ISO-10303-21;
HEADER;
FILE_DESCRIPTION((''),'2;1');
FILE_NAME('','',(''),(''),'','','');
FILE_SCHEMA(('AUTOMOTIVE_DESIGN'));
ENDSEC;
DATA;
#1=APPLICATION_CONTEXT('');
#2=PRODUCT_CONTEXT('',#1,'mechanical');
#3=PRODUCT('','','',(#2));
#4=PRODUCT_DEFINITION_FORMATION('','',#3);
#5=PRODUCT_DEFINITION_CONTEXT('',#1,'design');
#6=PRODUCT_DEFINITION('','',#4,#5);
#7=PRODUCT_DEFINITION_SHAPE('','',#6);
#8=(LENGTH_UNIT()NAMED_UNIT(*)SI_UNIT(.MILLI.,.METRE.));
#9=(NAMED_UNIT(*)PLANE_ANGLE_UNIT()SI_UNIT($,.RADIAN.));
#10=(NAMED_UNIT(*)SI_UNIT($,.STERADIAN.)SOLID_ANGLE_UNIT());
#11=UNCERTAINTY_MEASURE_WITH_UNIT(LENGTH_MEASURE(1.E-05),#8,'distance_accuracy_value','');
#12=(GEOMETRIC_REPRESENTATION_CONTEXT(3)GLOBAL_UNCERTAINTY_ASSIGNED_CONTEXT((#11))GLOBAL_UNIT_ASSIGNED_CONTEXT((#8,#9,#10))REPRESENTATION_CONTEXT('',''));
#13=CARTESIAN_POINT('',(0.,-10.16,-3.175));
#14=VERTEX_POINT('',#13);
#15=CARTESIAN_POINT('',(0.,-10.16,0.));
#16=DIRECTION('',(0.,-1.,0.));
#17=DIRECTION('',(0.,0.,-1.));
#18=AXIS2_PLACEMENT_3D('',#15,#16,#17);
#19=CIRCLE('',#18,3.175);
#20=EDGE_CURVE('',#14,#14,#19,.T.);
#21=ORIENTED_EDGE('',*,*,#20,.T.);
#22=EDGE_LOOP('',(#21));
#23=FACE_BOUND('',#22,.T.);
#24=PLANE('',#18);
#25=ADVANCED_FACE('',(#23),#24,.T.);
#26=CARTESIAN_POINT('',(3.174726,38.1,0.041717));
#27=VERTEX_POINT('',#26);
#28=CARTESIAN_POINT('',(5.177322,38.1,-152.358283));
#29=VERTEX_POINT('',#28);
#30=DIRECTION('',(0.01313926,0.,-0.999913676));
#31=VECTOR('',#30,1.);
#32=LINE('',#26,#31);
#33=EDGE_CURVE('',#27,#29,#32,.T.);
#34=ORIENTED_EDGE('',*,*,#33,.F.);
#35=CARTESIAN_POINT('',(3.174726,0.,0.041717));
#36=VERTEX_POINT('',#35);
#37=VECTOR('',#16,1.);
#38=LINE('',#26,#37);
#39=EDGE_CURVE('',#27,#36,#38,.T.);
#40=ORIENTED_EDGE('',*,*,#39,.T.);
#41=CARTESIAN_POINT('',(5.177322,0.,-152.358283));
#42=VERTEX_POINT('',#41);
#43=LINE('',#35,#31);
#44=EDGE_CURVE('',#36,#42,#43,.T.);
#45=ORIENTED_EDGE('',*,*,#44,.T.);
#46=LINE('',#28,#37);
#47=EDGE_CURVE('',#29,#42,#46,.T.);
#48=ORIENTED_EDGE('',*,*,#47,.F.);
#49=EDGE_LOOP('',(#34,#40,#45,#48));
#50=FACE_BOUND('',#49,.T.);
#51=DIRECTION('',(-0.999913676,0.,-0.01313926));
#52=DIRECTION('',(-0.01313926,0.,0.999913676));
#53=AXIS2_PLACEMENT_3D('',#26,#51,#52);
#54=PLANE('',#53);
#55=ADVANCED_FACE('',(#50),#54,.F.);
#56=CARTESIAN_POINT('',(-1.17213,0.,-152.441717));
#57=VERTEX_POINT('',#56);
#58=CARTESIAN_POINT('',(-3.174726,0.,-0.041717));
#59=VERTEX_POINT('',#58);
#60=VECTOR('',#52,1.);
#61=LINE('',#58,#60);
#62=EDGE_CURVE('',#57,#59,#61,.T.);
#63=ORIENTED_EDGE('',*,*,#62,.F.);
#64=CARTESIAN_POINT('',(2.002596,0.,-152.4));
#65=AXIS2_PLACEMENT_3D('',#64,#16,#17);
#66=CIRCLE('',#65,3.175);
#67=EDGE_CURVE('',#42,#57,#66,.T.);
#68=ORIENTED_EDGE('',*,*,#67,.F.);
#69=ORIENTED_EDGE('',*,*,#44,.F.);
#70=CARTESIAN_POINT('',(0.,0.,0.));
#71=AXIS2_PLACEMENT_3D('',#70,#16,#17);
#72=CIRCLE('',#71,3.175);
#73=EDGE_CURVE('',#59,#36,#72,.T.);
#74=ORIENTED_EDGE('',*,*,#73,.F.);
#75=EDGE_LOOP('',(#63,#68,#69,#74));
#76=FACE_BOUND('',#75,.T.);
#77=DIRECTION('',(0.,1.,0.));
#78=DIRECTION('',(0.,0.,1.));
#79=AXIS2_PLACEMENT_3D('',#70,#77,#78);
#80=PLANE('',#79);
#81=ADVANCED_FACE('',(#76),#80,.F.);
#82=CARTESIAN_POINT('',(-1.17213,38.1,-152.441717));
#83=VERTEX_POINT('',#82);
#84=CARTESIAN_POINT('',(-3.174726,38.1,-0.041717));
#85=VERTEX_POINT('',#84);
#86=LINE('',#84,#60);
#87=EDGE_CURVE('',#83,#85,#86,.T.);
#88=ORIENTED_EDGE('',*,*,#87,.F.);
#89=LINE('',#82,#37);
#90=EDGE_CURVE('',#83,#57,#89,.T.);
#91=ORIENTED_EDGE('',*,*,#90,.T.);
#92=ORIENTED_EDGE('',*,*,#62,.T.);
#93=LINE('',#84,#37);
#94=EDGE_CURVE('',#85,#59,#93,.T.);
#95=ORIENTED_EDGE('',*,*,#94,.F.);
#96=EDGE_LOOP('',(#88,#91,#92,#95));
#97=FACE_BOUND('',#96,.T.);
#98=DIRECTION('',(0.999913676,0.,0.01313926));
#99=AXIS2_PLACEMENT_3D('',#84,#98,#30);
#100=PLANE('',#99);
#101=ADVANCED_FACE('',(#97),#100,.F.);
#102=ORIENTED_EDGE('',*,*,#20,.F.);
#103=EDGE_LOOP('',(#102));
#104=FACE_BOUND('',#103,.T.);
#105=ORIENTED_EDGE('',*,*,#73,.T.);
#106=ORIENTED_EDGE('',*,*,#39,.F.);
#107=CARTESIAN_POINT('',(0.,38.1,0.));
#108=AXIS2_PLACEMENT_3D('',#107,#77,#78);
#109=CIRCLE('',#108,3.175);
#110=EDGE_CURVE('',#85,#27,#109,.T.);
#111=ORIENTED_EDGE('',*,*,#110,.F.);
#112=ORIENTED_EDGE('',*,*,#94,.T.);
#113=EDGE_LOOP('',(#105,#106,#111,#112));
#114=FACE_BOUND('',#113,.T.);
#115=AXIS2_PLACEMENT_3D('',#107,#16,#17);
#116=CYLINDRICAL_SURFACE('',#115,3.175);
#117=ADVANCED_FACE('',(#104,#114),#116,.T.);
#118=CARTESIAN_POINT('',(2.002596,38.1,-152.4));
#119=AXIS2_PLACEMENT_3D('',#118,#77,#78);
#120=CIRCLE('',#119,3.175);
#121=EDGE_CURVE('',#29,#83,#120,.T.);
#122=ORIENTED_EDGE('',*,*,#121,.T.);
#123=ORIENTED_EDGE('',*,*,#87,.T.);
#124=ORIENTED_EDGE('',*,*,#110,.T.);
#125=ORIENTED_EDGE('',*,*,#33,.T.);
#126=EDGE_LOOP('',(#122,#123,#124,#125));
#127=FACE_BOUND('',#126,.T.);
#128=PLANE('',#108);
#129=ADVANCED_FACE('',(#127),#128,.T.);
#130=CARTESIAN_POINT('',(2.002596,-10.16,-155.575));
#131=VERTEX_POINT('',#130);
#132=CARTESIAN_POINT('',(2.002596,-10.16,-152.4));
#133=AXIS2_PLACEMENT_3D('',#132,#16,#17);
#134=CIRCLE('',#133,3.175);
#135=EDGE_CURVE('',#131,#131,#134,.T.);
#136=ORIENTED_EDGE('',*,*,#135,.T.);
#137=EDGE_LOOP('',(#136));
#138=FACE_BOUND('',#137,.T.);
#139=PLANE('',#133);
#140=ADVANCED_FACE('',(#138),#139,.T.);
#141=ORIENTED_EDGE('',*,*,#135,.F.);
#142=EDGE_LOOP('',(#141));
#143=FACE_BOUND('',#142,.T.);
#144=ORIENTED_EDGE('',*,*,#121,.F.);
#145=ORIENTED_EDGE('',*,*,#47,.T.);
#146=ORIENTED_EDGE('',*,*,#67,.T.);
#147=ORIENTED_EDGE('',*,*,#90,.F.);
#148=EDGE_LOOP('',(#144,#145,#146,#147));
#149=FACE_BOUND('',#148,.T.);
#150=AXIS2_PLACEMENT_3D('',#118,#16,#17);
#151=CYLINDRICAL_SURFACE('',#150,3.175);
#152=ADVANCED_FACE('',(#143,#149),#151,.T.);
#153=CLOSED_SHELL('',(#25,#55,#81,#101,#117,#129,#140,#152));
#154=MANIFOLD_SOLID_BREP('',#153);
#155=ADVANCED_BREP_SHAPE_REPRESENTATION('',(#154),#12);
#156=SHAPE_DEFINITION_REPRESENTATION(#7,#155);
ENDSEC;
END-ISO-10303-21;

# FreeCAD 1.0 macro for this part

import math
import FreeCAD as App
import Part
import Sketcher
from FreeCAD import Vector
Q = App.Units.Quantity

doc = App.newDocument("Part")
body = doc.addObject("PartDesign::Body", "Body")

# Sketch on XZ plane
sketch1 = body.newObject("Sketcher::SketchObject", "Sketch")
sketch1.AttachmentSupport = (doc.getObject("XZ_Plane"), [""])
sketch1.MapMode = "FlatFace"
sketch1.addGeometry([
    Part.LineSegment(Vector(-1.2, -152.4, 0), Vector(-3.2, 0, 0)),
    Part.ArcOfCircle(Part.Circle(Vector(0, 0, 0), Vector(0, 0, 1), 3.2), math.radians(1), math.radians(181)),
    Part.LineSegment(Vector(3.2, 0, 0), Vector(5.2, -152.4, 0)),
    Part.ArcOfCircle(Part.Circle(Vector(2, -152.4, 0), Vector(0, 0, 1), 3.2), math.radians(-179), math.radians(1)),
], False)
sketch1.addConstraint([
    Sketcher.Constraint("Tangent", 0, 2, 1, 2),
    Sketcher.Constraint("Tangent", 1, 1, 2, 1),
    Sketcher.Constraint("Tangent", 2, 2, 3, 2),
    Sketcher.Constraint("Tangent", 3, 1, 0, 1),
    Sketcher.Constraint("Coincident", 1, 3, -1, 1),
    Sketcher.Constraint("Equal", 1, 3),
    Sketcher.Constraint("DistanceY", 3, 3, -1, 1, Q("6 in")),
    Sketcher.Constraint("Radius", 1, Q("0.125 in")),
    Sketcher.Constraint("DistanceX", 3, 1, -1, 1, 1.17213),
])
pad1 = body.newObject("PartDesign::Pad", "Pad")
pad1.Profile = sketch1
pad1.Length = Q("1.5 in")
pad1.Reversed = True

# Sketch on XZ plane
sketch2 = body.newObject("Sketcher::SketchObject", "Sketch001")
sketch2.AttachmentSupport = (doc.getObject("XZ_Plane"), [""])
sketch2.MapMode = "FlatFace"
sketch2.AttachmentOffset = App.Placement(Vector(0, 0, 0.4 * 25.4), App.Rotation())
sketch2.addGeometry([
    Part.Circle(Vector(2, -152.4, 0), Vector(0, 0, 1), 3.2),
    Part.Circle(Vector(0, 0, 0), Vector(0, 0, 1), 3.2),
], False)
sketch2.addConstraint([
    Sketcher.Constraint("Coincident", 1, 3, -1, 1),
    Sketcher.Constraint("Equal", 0, 1),
    Sketcher.Constraint("Diameter", 0, Q("0.25 in")),
    Sketcher.Constraint("DistanceY", 0, 3, -1, 1, Q("6 in")),
    Sketcher.Constraint("DistanceX", -1, 1, 0, 3, 2.002596),
])
pad2 = body.newObject("PartDesign::Pad", "Pad001")
pad2.Profile = sketch2
pad2.Length = Q("0.4 in")
pad2.Reversed = True

doc.recompute()
